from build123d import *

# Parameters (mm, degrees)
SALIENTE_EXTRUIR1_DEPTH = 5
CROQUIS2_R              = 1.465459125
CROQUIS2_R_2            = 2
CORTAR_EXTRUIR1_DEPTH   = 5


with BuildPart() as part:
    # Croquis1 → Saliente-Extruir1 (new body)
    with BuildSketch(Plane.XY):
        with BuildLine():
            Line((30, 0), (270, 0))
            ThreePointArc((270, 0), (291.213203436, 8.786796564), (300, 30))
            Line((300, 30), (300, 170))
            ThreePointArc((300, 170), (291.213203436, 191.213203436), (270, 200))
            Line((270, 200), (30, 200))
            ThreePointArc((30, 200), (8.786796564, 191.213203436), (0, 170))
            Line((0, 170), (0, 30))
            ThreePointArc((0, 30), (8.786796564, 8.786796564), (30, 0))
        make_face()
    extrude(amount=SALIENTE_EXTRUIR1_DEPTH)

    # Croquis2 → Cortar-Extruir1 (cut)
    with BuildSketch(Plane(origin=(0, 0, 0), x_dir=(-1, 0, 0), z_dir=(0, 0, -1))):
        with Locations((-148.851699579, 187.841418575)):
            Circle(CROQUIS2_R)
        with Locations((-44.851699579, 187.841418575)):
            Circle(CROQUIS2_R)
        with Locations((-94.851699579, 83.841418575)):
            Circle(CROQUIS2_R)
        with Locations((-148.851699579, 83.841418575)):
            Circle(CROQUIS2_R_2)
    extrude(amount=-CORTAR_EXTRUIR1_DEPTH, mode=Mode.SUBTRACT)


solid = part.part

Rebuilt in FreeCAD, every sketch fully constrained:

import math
import FreeCAD as App
import Part
import Sketcher

doc = App.newDocument("Part")
params = doc.addObject("Spreadsheet::Sheet", "Params")
for row, (alias, value) in enumerate([
    ("sketch1_radius", "30 mm"),
    ("sketch1_width", "240 mm"),
    ("sketch1_height", "140 mm"),
    ("pad1_length", "5 mm"),
    ("sketch2_diameter", "4 mm"),
    ("pocket1_length", "5 mm"),
], start=1):
    params.set(f"A{row}", alias)
    params.set(f"B{row}", "=" + value)
    params.setAlias(f"B{row}", alias)

body = doc.addObject("PartDesign::Body", "Body")

sketch1 = body.newObject("Sketcher::SketchObject", "Sketch")
sketch1.AttachmentSupport = (doc.getObject("XY_Plane"), [""])
sketch1.MapMode = "FlatFace"
sketch1.addGeometry([
    Part.LineSegment(App.Vector(30, 0, 0), App.Vector(270, 0, 0)),
    Part.ArcOfCircle(Part.Circle(App.Vector(270, 30, 0), App.Vector(0, 0, 1), 30), math.radians(-90), math.radians(0)),
    Part.LineSegment(App.Vector(300, 30, 0), App.Vector(300, 170, 0)),
    Part.ArcOfCircle(Part.Circle(App.Vector(270, 170, 0), App.Vector(0, 0, 1), 30), math.radians(0), math.radians(90)),
    Part.LineSegment(App.Vector(270, 200, 0), App.Vector(30, 200, 0)),
    Part.ArcOfCircle(Part.Circle(App.Vector(30, 170, 0), App.Vector(0, 0, 1), 30), math.radians(90), math.radians(180)),
    Part.LineSegment(App.Vector(0, 170, 0), App.Vector(0, 30, 0)),
    Part.ArcOfCircle(Part.Circle(App.Vector(30, 30, 0), App.Vector(0, 0, 1), 30), math.radians(180), math.radians(270)),
], False)
sketch1.addConstraint([
    Sketcher.Constraint("Tangent", 0, 2, 1, 1),
    Sketcher.Constraint("Tangent", 1, 2, 2, 1),
    Sketcher.Constraint("Tangent", 2, 2, 3, 1),
    Sketcher.Constraint("Tangent", 3, 2, 4, 1),
    Sketcher.Constraint("Tangent", 4, 2, 5, 1),
    Sketcher.Constraint("Tangent", 5, 2, 6, 1),
    Sketcher.Constraint("Tangent", 6, 2, 7, 1),
    Sketcher.Constraint("Tangent", 7, 2, 0, 1),
    Sketcher.Constraint("Horizontal", 0),
    Sketcher.Constraint("Vertical", 2),
    Sketcher.Constraint("Horizontal", 4),
    Sketcher.Constraint("Vertical", 6),
    Sketcher.Constraint("Equal", 1, 3),
    Sketcher.Constraint("Equal", 3, 5),
    Sketcher.Constraint("Equal", 5, 7),
    Sketcher.Constraint("PointOnObject", 0, 2, -1),
    Sketcher.Constraint("PointOnObject", 5, 2, -2),
    Sketcher.Constraint("Radius", 1, 30.0),
    Sketcher.Constraint("DistanceX", 0, 1, 0, 2, 240.0),
    Sketcher.Constraint("DistanceY", 2, 1, 2, 2, 140.0),
])
sketch1.setExpression("Constraints[17]", "Params.sketch1_radius")
sketch1.setExpression("Constraints[18]", "Params.sketch1_width")
sketch1.setExpression("Constraints[19]", "Params.sketch1_height")
pad1 = body.newObject("PartDesign::Pad", "Pad")
pad1.Profile = sketch1
pad1.setExpression("Length", "Params.pad1_length")

sketch2 = body.newObject("Sketcher::SketchObject", "Sketch001")
sketch2.AttachmentSupport = (doc.getObject("XY_Plane"), [""])
sketch2.MapMode = "FlatFace"
sketch2.addGeometry([
    Part.Circle(App.Vector(148.8517, 187.841419, 0), App.Vector(0, 0, 1), 1.465459),
    Part.Circle(App.Vector(44.8517, 187.841419, 0), App.Vector(0, 0, 1), 1.465459),
    Part.Circle(App.Vector(94.8517, 83.841419, 0), App.Vector(0, 0, 1), 1.465459),
    Part.Circle(App.Vector(148.8517, 83.841419, 0), App.Vector(0, 0, 1), 2),
], False)
sketch2.addConstraint([
    Sketcher.Constraint("Equal", 0, 1),
    Sketcher.Constraint("Equal", 1, 2),
    Sketcher.Constraint("Horizontal", 0, 3, 1, 3),
    Sketcher.Constraint("Horizontal", 2, 3, 3, 3),
    Sketcher.Constraint("Vertical", 0, 3, 3, 3),
    Sketcher.Constraint("Diameter", 3, 4.0),
    Sketcher.Constraint("DistanceX", 1, 3, 0, 3, 104.0),
    Sketcher.Constraint("DistanceX", 1, 3, 2, 3, 50.0),
    Sketcher.Constraint("DistanceY", 2, 3, 1, 3, 104.0),
    Sketcher.Constraint("Diameter", 0, 2.930918),
    Sketcher.Constraint("DistanceX", -1, 1, 0, 3, 148.8517),
    Sketcher.Constraint("DistanceY", -1, 1, 0, 3, 187.841419),
])
sketch2.setExpression("Constraints[5]", "Params.sketch2_diameter")
pocket1 = body.newObject("PartDesign::Pocket", "Pocket")
pocket1.Profile = sketch2
pocket1.setExpression("Length", "Params.pocket1_length")
pocket1.Reversed = True

doc.recompute()
